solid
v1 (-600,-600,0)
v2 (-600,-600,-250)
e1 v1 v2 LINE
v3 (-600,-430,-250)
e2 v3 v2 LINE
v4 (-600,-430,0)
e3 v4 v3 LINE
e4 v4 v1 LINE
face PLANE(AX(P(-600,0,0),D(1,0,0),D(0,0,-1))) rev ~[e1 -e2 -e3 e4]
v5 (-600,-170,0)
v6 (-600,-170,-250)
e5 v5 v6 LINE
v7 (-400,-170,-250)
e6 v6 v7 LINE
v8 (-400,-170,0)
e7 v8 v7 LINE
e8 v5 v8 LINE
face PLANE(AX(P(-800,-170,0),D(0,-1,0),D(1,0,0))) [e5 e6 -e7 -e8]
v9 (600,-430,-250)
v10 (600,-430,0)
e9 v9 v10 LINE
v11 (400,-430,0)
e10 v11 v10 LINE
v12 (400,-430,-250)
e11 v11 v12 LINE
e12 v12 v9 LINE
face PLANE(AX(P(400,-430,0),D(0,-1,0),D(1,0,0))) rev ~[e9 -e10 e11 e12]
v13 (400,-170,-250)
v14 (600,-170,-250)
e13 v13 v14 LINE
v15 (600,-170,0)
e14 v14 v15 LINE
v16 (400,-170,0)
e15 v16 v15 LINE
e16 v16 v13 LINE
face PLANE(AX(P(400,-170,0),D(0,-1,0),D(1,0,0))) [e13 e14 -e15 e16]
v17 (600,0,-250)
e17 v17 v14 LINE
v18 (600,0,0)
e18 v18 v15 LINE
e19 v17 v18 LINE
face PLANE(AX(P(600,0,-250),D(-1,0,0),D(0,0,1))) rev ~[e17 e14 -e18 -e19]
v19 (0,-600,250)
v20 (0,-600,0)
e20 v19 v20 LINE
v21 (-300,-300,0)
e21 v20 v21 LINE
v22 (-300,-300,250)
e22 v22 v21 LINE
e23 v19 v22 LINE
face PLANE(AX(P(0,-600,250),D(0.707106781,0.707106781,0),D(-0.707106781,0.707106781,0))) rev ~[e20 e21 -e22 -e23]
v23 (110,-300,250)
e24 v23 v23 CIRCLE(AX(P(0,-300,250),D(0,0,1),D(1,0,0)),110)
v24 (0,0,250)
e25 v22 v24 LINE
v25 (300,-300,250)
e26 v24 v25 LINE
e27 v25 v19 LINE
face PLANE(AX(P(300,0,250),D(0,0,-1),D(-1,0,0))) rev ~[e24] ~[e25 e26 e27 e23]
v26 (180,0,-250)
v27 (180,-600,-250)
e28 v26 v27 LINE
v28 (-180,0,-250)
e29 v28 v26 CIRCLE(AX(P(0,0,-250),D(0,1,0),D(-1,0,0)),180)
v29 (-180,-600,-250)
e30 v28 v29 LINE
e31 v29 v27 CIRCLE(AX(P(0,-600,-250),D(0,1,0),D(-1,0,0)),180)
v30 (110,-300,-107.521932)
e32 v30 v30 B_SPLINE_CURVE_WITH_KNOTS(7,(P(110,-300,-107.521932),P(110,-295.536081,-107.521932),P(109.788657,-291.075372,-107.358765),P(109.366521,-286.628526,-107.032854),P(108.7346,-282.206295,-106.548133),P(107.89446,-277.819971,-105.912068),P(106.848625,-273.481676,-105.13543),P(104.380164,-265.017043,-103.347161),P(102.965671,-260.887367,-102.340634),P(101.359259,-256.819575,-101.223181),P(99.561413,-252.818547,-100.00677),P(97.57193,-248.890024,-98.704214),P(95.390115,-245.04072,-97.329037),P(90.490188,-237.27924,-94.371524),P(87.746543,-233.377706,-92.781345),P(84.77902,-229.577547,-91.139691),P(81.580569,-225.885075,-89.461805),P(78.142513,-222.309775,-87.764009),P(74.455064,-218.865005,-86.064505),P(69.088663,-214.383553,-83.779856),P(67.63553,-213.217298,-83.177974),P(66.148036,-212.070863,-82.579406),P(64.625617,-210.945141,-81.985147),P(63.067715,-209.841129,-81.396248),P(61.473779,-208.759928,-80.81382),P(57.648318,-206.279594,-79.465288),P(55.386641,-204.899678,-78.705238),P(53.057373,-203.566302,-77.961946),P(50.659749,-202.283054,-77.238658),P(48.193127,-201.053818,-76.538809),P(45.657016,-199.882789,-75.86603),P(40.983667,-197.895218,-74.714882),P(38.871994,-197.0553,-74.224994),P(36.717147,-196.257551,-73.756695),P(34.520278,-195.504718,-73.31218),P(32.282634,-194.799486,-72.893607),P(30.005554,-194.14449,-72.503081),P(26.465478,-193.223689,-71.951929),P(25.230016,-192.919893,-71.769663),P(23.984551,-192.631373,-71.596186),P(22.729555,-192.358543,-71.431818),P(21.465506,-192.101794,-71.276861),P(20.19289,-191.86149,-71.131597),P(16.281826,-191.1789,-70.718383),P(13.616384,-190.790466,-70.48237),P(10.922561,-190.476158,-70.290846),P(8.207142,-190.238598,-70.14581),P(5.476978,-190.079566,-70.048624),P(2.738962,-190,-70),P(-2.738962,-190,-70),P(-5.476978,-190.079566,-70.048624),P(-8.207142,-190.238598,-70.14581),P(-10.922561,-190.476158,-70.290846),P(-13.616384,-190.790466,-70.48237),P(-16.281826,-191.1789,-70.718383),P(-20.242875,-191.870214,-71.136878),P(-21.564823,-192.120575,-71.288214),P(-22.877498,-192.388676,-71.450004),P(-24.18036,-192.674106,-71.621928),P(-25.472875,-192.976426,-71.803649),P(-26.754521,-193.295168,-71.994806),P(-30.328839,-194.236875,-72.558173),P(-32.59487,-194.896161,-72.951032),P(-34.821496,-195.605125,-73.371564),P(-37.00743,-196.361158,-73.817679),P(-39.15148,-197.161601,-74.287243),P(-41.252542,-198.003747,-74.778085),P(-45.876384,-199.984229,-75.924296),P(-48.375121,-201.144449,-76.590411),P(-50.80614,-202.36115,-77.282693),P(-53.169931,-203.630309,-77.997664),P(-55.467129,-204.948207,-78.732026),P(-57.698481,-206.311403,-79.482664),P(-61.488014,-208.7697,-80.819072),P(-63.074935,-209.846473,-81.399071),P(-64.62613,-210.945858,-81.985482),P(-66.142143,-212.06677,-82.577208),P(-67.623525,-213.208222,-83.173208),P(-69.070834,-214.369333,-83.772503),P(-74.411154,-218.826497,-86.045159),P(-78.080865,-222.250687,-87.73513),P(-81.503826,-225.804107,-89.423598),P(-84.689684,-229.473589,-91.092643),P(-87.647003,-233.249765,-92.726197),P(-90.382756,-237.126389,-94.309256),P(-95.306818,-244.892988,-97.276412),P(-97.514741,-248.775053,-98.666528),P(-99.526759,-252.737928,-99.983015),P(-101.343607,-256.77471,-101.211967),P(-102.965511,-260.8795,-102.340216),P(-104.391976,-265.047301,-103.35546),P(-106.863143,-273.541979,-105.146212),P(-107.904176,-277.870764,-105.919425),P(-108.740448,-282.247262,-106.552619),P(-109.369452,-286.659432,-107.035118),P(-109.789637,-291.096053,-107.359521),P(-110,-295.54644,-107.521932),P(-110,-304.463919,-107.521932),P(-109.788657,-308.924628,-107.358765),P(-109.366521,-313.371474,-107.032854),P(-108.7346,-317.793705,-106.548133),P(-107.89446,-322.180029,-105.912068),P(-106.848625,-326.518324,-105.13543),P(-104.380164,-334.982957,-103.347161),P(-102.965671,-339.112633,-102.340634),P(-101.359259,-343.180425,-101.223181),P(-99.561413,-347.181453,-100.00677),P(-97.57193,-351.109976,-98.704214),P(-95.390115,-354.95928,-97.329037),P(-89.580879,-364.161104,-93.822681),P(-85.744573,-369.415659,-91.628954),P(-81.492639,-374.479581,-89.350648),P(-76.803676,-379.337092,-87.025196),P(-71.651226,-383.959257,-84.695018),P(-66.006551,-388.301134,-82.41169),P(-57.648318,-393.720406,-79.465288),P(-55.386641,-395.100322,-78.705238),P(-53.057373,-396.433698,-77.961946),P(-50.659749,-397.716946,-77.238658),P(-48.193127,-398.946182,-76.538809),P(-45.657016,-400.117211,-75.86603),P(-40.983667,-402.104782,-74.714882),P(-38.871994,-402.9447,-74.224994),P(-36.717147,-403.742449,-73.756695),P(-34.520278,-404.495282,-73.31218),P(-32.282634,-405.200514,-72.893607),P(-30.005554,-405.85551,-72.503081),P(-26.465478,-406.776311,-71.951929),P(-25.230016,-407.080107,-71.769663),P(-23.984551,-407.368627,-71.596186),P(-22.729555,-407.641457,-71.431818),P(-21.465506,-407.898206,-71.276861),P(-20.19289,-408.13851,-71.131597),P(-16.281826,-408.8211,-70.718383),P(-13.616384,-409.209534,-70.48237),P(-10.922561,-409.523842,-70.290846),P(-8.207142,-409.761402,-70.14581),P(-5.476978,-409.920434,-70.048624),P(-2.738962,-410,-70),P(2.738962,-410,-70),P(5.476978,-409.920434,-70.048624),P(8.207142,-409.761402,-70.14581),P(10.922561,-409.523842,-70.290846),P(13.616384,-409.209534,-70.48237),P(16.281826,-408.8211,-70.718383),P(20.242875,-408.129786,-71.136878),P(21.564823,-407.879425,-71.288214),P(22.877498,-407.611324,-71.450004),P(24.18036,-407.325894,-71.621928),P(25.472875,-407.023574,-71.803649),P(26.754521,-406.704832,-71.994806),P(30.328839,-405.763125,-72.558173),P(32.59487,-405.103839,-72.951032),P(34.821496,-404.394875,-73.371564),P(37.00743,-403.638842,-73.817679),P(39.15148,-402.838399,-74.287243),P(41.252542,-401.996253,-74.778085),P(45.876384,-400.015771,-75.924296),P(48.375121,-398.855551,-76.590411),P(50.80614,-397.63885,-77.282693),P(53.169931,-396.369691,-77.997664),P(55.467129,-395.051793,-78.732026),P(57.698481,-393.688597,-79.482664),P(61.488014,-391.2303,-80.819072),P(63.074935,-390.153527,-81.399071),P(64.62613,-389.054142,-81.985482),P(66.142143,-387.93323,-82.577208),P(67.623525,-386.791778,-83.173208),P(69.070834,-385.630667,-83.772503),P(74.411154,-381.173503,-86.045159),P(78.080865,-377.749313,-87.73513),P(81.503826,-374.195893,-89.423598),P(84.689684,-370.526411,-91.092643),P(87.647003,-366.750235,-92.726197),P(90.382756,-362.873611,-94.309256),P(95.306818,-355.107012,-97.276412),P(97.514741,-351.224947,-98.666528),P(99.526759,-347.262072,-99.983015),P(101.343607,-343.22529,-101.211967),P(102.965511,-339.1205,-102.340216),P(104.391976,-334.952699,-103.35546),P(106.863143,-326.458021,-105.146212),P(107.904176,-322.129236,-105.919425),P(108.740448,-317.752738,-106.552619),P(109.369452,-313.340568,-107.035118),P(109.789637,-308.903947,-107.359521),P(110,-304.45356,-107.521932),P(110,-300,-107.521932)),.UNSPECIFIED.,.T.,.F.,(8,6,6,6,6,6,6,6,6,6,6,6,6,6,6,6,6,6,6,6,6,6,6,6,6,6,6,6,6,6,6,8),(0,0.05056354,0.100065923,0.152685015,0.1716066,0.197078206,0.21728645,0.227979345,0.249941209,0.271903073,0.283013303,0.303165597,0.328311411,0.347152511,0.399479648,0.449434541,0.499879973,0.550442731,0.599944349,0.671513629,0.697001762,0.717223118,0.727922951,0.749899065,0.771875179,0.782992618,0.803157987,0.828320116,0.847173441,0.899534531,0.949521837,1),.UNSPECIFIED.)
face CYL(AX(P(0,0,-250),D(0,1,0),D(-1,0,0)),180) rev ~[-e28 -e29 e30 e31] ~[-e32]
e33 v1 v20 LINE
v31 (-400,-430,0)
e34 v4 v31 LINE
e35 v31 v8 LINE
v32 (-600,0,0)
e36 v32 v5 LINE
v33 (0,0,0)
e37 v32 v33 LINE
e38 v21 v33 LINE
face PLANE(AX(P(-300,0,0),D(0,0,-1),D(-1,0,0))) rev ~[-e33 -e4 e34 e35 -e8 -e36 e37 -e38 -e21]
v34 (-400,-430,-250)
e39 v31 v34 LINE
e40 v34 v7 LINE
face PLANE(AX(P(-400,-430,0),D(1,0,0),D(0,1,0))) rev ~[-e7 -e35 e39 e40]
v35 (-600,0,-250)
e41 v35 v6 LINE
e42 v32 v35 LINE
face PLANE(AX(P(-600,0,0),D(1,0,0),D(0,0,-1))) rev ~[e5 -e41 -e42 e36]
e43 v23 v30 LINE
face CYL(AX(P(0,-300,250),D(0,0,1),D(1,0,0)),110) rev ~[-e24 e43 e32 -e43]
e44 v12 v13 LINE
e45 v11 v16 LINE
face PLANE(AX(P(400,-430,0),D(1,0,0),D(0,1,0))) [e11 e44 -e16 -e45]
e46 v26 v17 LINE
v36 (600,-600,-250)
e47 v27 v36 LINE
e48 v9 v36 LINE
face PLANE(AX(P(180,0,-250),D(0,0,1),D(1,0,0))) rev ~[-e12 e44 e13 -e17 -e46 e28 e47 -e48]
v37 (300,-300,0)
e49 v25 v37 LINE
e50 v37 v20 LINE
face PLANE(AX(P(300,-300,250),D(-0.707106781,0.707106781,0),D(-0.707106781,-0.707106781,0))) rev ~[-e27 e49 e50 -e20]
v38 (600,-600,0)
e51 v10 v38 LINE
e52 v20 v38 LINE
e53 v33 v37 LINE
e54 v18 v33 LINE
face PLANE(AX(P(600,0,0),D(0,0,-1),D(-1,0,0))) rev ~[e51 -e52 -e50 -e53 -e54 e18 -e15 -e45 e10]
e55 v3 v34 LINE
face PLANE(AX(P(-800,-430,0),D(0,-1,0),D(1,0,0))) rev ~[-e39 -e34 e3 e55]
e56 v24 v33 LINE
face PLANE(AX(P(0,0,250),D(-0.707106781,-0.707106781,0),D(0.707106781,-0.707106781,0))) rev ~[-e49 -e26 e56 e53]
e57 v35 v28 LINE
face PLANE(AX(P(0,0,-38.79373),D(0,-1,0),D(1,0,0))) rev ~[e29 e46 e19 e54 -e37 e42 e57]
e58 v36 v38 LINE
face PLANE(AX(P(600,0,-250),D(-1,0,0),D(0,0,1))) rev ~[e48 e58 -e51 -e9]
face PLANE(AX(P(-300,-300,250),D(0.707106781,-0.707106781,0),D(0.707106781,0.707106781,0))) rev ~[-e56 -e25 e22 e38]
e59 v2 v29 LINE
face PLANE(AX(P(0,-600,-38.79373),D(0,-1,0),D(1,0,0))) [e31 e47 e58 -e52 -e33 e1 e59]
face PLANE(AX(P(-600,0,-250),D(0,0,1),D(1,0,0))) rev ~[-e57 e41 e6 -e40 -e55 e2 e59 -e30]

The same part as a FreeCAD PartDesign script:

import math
import FreeCAD as App
import Part
import Sketcher
from FreeCAD import Vector

doc = App.newDocument("Part")
body = doc.addObject("PartDesign::Body", "Body")

sketch1 = body.newObject("Sketcher::SketchObject", "Sketch")
sketch1.AttachmentSupport = (doc.getObject("XZ_Plane"), [""])
sketch1.MapMode = "FlatFace"
sketch1.addGeometry(Part.LineSegment(Vector(300, 250, 0), Vector(-300, 250, 0)), False)
sketch1.addGeometry(Part.LineSegment(Vector(-300, 250, 0), Vector(-300, 0, 0)), False)
sketch1.addGeometry(Part.LineSegment(Vector(-300, 0, 0), Vector(-600, 0, 0)), False)
sketch1.addGeometry(Part.LineSegment(Vector(-600, 0, 0), Vector(-600, -250, 0)), False)
sketch1.addGeometry(Part.LineSegment(Vector(-600, -250, 0), Vector(-180, -250, 0)), False)
sketch1.addGeometry(Part.ArcOfCircle(Part.Circle(Vector(0, -250, 0), Vector(0, 0, 1), 180), math.radians(0), math.radians(180)), False)
sketch1.addGeometry(Part.LineSegment(Vector(180, -250, 0), Vector(600, -250, 0)), False)
sketch1.addGeometry(Part.LineSegment(Vector(600, -250, 0), Vector(600, 0, 0)), False)
sketch1.addGeometry(Part.LineSegment(Vector(600, 0, 0), Vector(300, 0, 0)), False)
sketch1.addGeometry(Part.LineSegment(Vector(300, 0, 0), Vector(300, 250, 0)), False)
sketch1.addConstraint(Sketcher.Constraint("Coincident", 0, 2, 1, 1))
sketch1.addConstraint(Sketcher.Constraint("Coincident", 1, 2, 2, 1))
sketch1.addConstraint(Sketcher.Constraint("Coincident", 2, 2, 3, 1))
sketch1.addConstraint(Sketcher.Constraint("Coincident", 3, 2, 4, 1))
sketch1.addConstraint(Sketcher.Constraint("Coincident", 4, 2, 5, 2))
sketch1.addConstraint(Sketcher.Constraint("Coincident", 5, 1, 6, 1))
sketch1.addConstraint(Sketcher.Constraint("Coincident", 6, 2, 7, 1))
sketch1.addConstraint(Sketcher.Constraint("Coincident", 7, 2, 8, 1))
sketch1.addConstraint(Sketcher.Constraint("Coincident", 8, 2, 9, 1))
sketch1.addConstraint(Sketcher.Constraint("Coincident", 9, 2, 0, 1))
sketch1.addConstraint(Sketcher.Constraint("Horizontal", 0))
sketch1.addConstraint(Sketcher.Constraint("Vertical", 1))
sketch1.addConstraint(Sketcher.Constraint("Horizontal", 2))
sketch1.addConstraint(Sketcher.Constraint("Vertical", 3))
sketch1.addConstraint(Sketcher.Constraint("Horizontal", 4))
sketch1.addConstraint(Sketcher.Constraint("Horizontal", 6))
sketch1.addConstraint(Sketcher.Constraint("Vertical", 7))
sketch1.addConstraint(Sketcher.Constraint("Horizontal", 8))
sketch1.addConstraint(Sketcher.Constraint("Vertical", 9))
sketch1.addConstraint(Sketcher.Constraint("Symmetric", 2, 2, 7, 2, -1, 1))
sketch1.addConstraint(Sketcher.Constraint("Symmetric", 4, 2, 5, 1, -2))
sketch1.addConstraint(Sketcher.Constraint("Symmetric", 1, 2, 8, 2, -2))
sketch1.addConstraint(Sketcher.Constraint("Horizontal", 5, 3, 3, 2))
sketch1.addConstraint(Sketcher.Constraint("Equal", 1, 3))
sketch1.addConstraint(Sketcher.Constraint("Radius", 5, 180.0))
sketch1.addConstraint(Sketcher.Constraint("DistanceX", 0, 2, 0, 1, 600.0))
sketch1.addConstraint(Sketcher.Constraint("DistanceX", 2, 2, 2, 1, 300.0))
sketch1.addConstraint(Sketcher.Constraint("DistanceY", 1, 2, 1, 1, 250.0))
pad1 = body.newObject("PartDesign::Pad", "Pad")
pad1.Profile = sketch1
pad1.Length = 600

sketch2 = body.newObject("Sketcher::SketchObject", "Sketch001")
sketch2.AttachmentSupport = (doc.getObject("XY_Plane"), [""])
sketch2.MapMode = "FlatFace"
sketch2.addGeometry(Part.LineSegment(Vector(400, -170, 0), Vector(400, -430, 0)), False)
sketch2.addGeometry(Part.LineSegment(Vector(400, -430, 0), Vector(800, -430, 0)), False)
sketch2.addGeometry(Part.LineSegment(Vector(800, -430, 0), Vector(800, -170, 0)), False)
sketch2.addGeometry(Part.LineSegment(Vector(800, -170, 0), Vector(400, -170, 0)), False)
sketch2.addConstraint(Sketcher.Constraint("Coincident", 0, 2, 1, 1))
sketch2.addConstraint(Sketcher.Constraint("Coincident", 1, 2, 2, 1))
sketch2.addConstraint(Sketcher.Constraint("Coincident", 2, 2, 3, 1))
sketch2.addConstraint(Sketcher.Constraint("Coincident", 3, 2, 0, 1))
sketch2.addConstraint(Sketcher.Constraint("Vertical", 0))
sketch2.addConstraint(Sketcher.Constraint("Horizontal", 1))
sketch2.addConstraint(Sketcher.Constraint("Vertical", 2))
sketch2.addConstraint(Sketcher.Constraint("Horizontal", 3))
sketch2.addConstraint(Sketcher.Constraint("DistanceX", 1, 1, 1, 2, 400.0))
sketch2.addConstraint(Sketcher.Constraint("DistanceY", 0, 2, 0, 1, 260.0))
sketch2.addConstraint(Sketcher.Constraint("DistanceX", -1, 1, 0, 2, 400.0))
sketch2.addConstraint(Sketcher.Constraint("DistanceY", 0, 2, -1, 1, 430.0))
pocket1 = body.newObject("PartDesign::Pocket", "Pocket")
pocket1.Profile = sketch2
pocket1.Type = "ThroughAll"
pocket1.Reversed = True

sketch3 = body.newObject("Sketcher::SketchObject", "Sketch002")
sketch3.AttachmentSupport = (doc.getObject("XY_Plane"), [""])
sketch3.MapMode = "FlatFace"
sketch3.addGeometry(Part.LineSegment(Vector(400, -170, 0), Vector(400, -430, 0)), False)
sketch3.addGeometry(Part.LineSegment(Vector(400, -430, 0), Vector(800, -430, 0)), False)
sketch3.addGeometry(Part.LineSegment(Vector(800, -430, 0), Vector(800, -170, 0)), False)
sketch3.addGeometry(Part.LineSegment(Vector(800, -170, 0), Vector(400, -170, 0)), False)
sketch3.addConstraint(Sketcher.Constraint("Coincident", 0, 2, 1, 1))
sketch3.addConstraint(Sketcher.Constraint("Coincident", 1, 2, 2, 1))
sketch3.addConstraint(Sketcher.Constraint("Coincident", 2, 2, 3, 1))
sketch3.addConstraint(Sketcher.Constraint("Coincident", 3, 2, 0, 1))
sketch3.addConstraint(Sketcher.Constraint("Vertical", 0))
sketch3.addConstraint(Sketcher.Constraint("Horizontal", 1))
sketch3.addConstraint(Sketcher.Constraint("Vertical", 2))
sketch3.addConstraint(Sketcher.Constraint("Horizontal", 3))
sketch3.addConstraint(Sketcher.Constraint("DistanceX", 1, 1, 1, 2, 400.0))
sketch3.addConstraint(Sketcher.Constraint("DistanceY", 0, 2, 0, 1, 260.0))
sketch3.addConstraint(Sketcher.Constraint("DistanceX", -1, 1, 0, 2, 400.0))
sketch3.addConstraint(Sketcher.Constraint("DistanceY", 0, 2, -1, 1, 430.0))
pocket2 = body.newObject("PartDesign::Pocket", "Pocket001")
pocket2.Profile = sketch3
pocket2.Type = "ThroughAll"

sketch4 = body.newObject("Sketcher::SketchObject", "Sketch003")
sketch4.AttachmentSupport = (doc.getObject("XY_Plane"), [""])
sketch4.MapMode = "FlatFace"
sketch4.addGeometry(Part.LineSegment(Vector(-800, -170, 0), Vector(-800, -430, 0)), False)
sketch4.addGeometry(Part.LineSegment(Vector(-800, -430, 0), Vector(-400, -430, 0)), False)
sketch4.addGeometry(Part.LineSegment(Vector(-400, -430, 0), Vector(-400, -170, 0)), False)
sketch4.addGeometry(Part.LineSegment(Vector(-400, -170, 0), Vector(-800, -170, 0)), False)
sketch4.addConstraint(Sketcher.Constraint("Coincident", 0, 2, 1, 1))
sketch4.addConstraint(Sketcher.Constraint("Coincident", 1, 2, 2, 1))
sketch4.addConstraint(Sketcher.Constraint("Coincident", 2, 2, 3, 1))
sketch4.addConstraint(Sketcher.Constraint("Coincident", 3, 2, 0, 1))
sketch4.addConstraint(Sketcher.Constraint("Vertical", 0))
sketch4.addConstraint(Sketcher.Constraint("Horizontal", 1))
sketch4.addConstraint(Sketcher.Constraint("Vertical", 2))
sketch4.addConstraint(Sketcher.Constraint("Horizontal", 3))
sketch4.addConstraint(Sketcher.Constraint("DistanceX", 1, 1, 1, 2, 400.0))
sketch4.addConstraint(Sketcher.Constraint("DistanceY", 0, 2, 0, 1, 260.0))
sketch4.addConstraint(Sketcher.Constraint("DistanceX", 0, 2, -1, 1, 800.0))
sketch4.addConstraint(Sketcher.Constraint("DistanceY", 0, 2, -1, 1, 430.0))
pocket3 = body.newObject("PartDesign::Pocket", "Pocket002")
pocket3.Profile = sketch4
pocket3.Type = "ThroughAll"

sketch5 = body.newObject("Sketcher::SketchObject", "Sketch004")
sketch5.AttachmentSupport = (doc.getObject("XY_Plane"), [""])
sketch5.MapMode = "FlatFace"
sketch5.AttachmentOffset = App.Placement(Vector(0, 0, 250), App.Rotation())
sketch5.addGeometry(Part.LineSegment(Vector(300, -300, 0), Vector(0, -600, 0)), False)
sketch5.addGeometry(Part.LineSegment(Vector(0, -600, 0), Vector(300, -600, 0)), False)
sketch5.addGeometry(Part.LineSegment(Vector(300, -600, 0), Vector(300, -300, 0)), False)
sketch5.addGeometry(Part.LineSegment(Vector(0, -600, 0), Vector(-300, -300, 0)), False)
sketch5.addGeometry(Part.LineSegment(Vector(-300, -300, 0), Vector(-300, -600, 0)), False)
sketch5.addGeometry(Part.LineSegment(Vector(-300, -600, 0), Vector(0, -600, 0)), False)
sketch5.addGeometry(Part.LineSegment(Vector(-300, -300, 0), Vector(0, 0, 0)), False)
sketch5.addGeometry(Part.LineSegment(Vector(0, 0, 0), Vector(-300, 0, 0)), False)
sketch5.addGeometry(Part.LineSegment(Vector(-300, 0, 0), Vector(-300, -300, 0)), False)
sketch5.addConstraint(Sketcher.Constraint("Coincident", 0, 2, 1, 1))
sketch5.addConstraint(Sketcher.Constraint("Coincident", 1, 2, 2, 1))
sketch5.addConstraint(Sketcher.Constraint("Coincident", 2, 2, 0, 1))
sketch5.addConstraint(Sketcher.Constraint("Coincident", 3, 2, 4, 1))
sketch5.addConstraint(Sketcher.Constraint("Coincident", 4, 2, 5, 1))
sketch5.addConstraint(Sketcher.Constraint("Coincident", 5, 2, 3, 1))
sketch5.addConstraint(Sketcher.Constraint("Coincident", 6, 2, 7, 1))
sketch5.addConstraint(Sketcher.Constraint("Coincident", 7, 2, 8, 1))
sketch5.addConstraint(Sketcher.Constraint("Coincident", 8, 2, 6, 1))
sketch5.addConstraint(Sketcher.Constraint("Horizontal", 1))
sketch5.addConstraint(Sketcher.Constraint("Vertical", 2))
sketch5.addConstraint(Sketcher.Constraint("Vertical", 4))
sketch5.addConstraint(Sketcher.Constraint("Horizontal", 5))
sketch5.addConstraint(Sketcher.Constraint("Horizontal", 7))
sketch5.addConstraint(Sketcher.Constraint("Vertical", 8))
sketch5.addConstraint(Sketcher.Constraint("Coincident", 6, 2, -1, 1))
sketch5.addConstraint(Sketcher.Constraint("Coincident", 5, 2, 0, 2))
sketch5.addConstraint(Sketcher.Constraint("Coincident", 8, 2, 3, 2))
sketch5.addConstraint(Sketcher.Constraint("Symmetric", 2, 2, 3, 2, -2))
sketch5.addConstraint(Sketcher.Constraint("PointOnObject", 0, 2, -2))
sketch5.addConstraint(Sketcher.Constraint("Perpendicular", 0, 3))
sketch5.addConstraint(Sketcher.Constraint("Perpendicular", 3, 6))
sketch5.addConstraint(Sketcher.Constraint("DistanceX", 1, 1, 1, 2, 300.0))
pocket4 = body.newObject("PartDesign::Pocket", "Pocket003")
pocket4.Profile = sketch5
pocket4.Length = 250

sketch6 = body.newObject("Sketcher::SketchObject", "Sketch005")
sketch6.AttachmentSupport = (doc.getObject("XY_Plane"), [""])
sketch6.MapMode = "FlatFace"
sketch6.AttachmentOffset = App.Placement(Vector(0, 0, 250), App.Rotation())
sketch6.addGeometry(Part.LineSegment(Vector(300, 0, 0), Vector(0, 0, 0)), False)
sketch6.addGeometry(Part.LineSegment(Vector(0, 0, 0), Vector(300, -300, 0)), False)
sketch6.addGeometry(Part.LineSegment(Vector(300, -300, 0), Vector(300, 0, 0)), False)
sketch6.addConstraint(Sketcher.Constraint("Coincident", 0, 2, 1, 1))
sketch6.addConstraint(Sketcher.Constraint("Coincident", 1, 2, 2, 1))
sketch6.addConstraint(Sketcher.Constraint("Coincident", 2, 2, 0, 1))
sketch6.addConstraint(Sketcher.Constraint("Horizontal", 0))
sketch6.addConstraint(Sketcher.Constraint("Vertical", 2))
sketch6.addConstraint(Sketcher.Constraint("Coincident", 0, 2, -1, 1))
sketch6.addConstraint(Sketcher.Constraint("Equal", 0, 2))
sketch6.addConstraint(Sketcher.Constraint("DistanceX", 0, 2, 0, 1, 300.0))
pocket5 = body.newObject("PartDesign::Pocket", "Pocket004")
pocket5.Profile = sketch6
pocket5.Length = 250

sketch7 = body.newObject("Sketcher::SketchObject", "Sketch006")
sketch7.AttachmentSupport = (doc.getObject("XY_Plane"), [""])
sketch7.MapMode = "FlatFace"
sketch7.AttachmentOffset = App.Placement(Vector(0, 0, 250), App.Rotation())
sketch7.addGeometry(Part.Circle(Vector(0, -300, 0), Vector(0, 0, 1), 110), False)
sketch7.addConstraint(Sketcher.Constraint("PointOnObject", 0, 3, -2))
sketch7.addConstraint(Sketcher.Constraint("Diameter", 0, 220.0))
sketch7.addConstraint(Sketcher.Constraint("DistanceY", 0, 3, -1, 1, 300.0))
pocket6 = body.newObject("PartDesign::Pocket", "Pocket005")
pocket6.Profile = sketch7
pocket6.Type = "ThroughAll"

doc.recompute()
